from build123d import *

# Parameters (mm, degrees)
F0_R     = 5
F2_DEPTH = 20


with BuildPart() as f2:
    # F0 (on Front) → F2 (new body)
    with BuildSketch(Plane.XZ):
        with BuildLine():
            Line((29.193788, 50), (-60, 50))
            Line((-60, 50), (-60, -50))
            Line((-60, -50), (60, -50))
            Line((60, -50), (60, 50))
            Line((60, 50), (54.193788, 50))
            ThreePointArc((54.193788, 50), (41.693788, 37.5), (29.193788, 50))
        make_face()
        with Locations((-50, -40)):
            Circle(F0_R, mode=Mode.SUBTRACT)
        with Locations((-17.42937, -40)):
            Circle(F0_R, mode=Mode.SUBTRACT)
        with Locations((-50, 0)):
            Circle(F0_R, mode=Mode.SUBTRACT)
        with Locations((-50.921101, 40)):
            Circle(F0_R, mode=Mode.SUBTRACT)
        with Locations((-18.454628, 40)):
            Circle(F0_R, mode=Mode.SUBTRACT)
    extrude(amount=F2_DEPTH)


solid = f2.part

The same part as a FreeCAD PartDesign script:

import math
import FreeCAD as App
import Part
import Sketcher

doc = App.newDocument("Part")
body = doc.addObject("PartDesign::Body", "Body")

# Sketch on XZ plane
sketch1 = body.newObject("Sketcher::SketchObject", "Sketch")
sketch1.AttachmentSupport = (doc.getObject("XZ_Plane"), [""])
sketch1.MapMode = "FlatFace"
sketch1.addGeometry(Part.LineSegment(App.Vector(29, 50, 0), App.Vector(-60, 50, 0)), False)
sketch1.addGeometry(Part.LineSegment(App.Vector(-60, 50, 0), App.Vector(-60, -50, 0)), False)
sketch1.addGeometry(Part.LineSegment(App.Vector(-60, -50, 0), App.Vector(60, -50, 0)), False)
sketch1.addGeometry(Part.LineSegment(App.Vector(60, -50, 0), App.Vector(60, 50, 0)), False)
sketch1.addGeometry(Part.LineSegment(App.Vector(60, 50, 0), App.Vector(54, 50, 0)), False)
sketch1.addGeometry(Part.ArcOfCircle(Part.Circle(App.Vector(42, 50, 0), App.Vector(0, 0, 1), 12), math.radians(180), math.radians(360)), False)
sketch1.addGeometry(Part.Circle(App.Vector(-50, -40, 0), App.Vector(0, 0, 1), 5), False)
sketch1.addGeometry(Part.Circle(App.Vector(-17, -40, 0), App.Vector(0, 0, 1), 5), False)
sketch1.addGeometry(Part.Circle(App.Vector(-50, 0, 0), App.Vector(0, 0, 1), 5), False)
sketch1.addGeometry(Part.Circle(App.Vector(-51, 40, 0), App.Vector(0, 0, 1), 5), False)
sketch1.addGeometry(Part.Circle(App.Vector(-18, 40, 0), App.Vector(0, 0, 1), 5), False)
sketch1.addConstraint(Sketcher.Constraint("Coincident", 0, 2, 1, 1))
sketch1.addConstraint(Sketcher.Constraint("Coincident", 1, 2, 2, 1))
sketch1.addConstraint(Sketcher.Constraint("Coincident", 2, 2, 3, 1))
sketch1.addConstraint(Sketcher.Constraint("Coincident", 3, 2, 4, 1))
sketch1.addConstraint(Sketcher.Constraint("Coincident", 4, 2, 5, 2))
sketch1.addConstraint(Sketcher.Constraint("Coincident", 5, 1, 0, 1))
sketch1.addConstraint(Sketcher.Constraint("Horizontal", 0))
sketch1.addConstraint(Sketcher.Constraint("Vertical", 1))
sketch1.addConstraint(Sketcher.Constraint("Horizontal", 2))
sketch1.addConstraint(Sketcher.Constraint("Vertical", 3))
sketch1.addConstraint(Sketcher.Constraint("Horizontal", 4))
sketch1.addConstraint(Sketcher.Constraint("Equal", 6, 7))
sketch1.addConstraint(Sketcher.Constraint("Equal", 7, 8))
sketch1.addConstraint(Sketcher.Constraint("Equal", 8, 9))
sketch1.addConstraint(Sketcher.Constraint("Equal", 9, 10))
sketch1.addConstraint(Sketcher.Constraint("Symmetric", 0, 2, 2, 2, -1, 1))
sketch1.addConstraint(Sketcher.Constraint("PointOnObject", 8, 3, -1))
sketch1.addConstraint(Sketcher.Constraint("Horizontal", 6, 3, 7, 3))
sketch1.addConstraint(Sketcher.Constraint("Horizontal", 9, 3, 10, 3))
sketch1.addConstraint(Sketcher.Constraint("Horizontal", 5, 3, 0, 2))
sketch1.addConstraint(Sketcher.Constraint("Horizontal", 0, 2, 3, 2))
sketch1.addConstraint(Sketcher.Constraint("Vertical", 6, 3, 8, 3))
sketch1.addConstraint(Sketcher.Constraint("Diameter", 6, 10.0))
sketch1.addConstraint(Sketcher.Constraint("Radius", 5, 12.5))
sketch1.addConstraint(Sketcher.Constraint("DistanceX", 2, 1, 2, 2, 120.0))
sketch1.addConstraint(Sketcher.Constraint("DistanceY", 1, 2, 1, 1, 100.0))
sketch1.addConstraint(Sketcher.Constraint("DistanceX", 6, 3, -1, 1, 50.0))
sketch1.addConstraint(Sketcher.Constraint("DistanceY", 6, 3, -1, 1, 40.0))
sketch1.addConstraint(Sketcher.Constraint("DistanceY", -1, 1, 9, 3, 40.0))
sketch1.addConstraint(Sketcher.Constraint("DistanceX", 9, 3, -1, 1, 50.921101))
sketch1.addConstraint(Sketcher.Constraint("DistanceX", 0, 2, 0, 1, 89.193788))
sketch1.addConstraint(Sketcher.Constraint("DistanceX", 7, 3, -1, 1, 17.42937))
sketch1.addConstraint(Sketcher.Constraint("DistanceX", 10, 3, 7, 3, 1.025258))
pad1 = body.newObject("PartDesign::Pad", "Pad")
pad1.Profile = sketch1
pad1.Length = 20

doc.recompute()
